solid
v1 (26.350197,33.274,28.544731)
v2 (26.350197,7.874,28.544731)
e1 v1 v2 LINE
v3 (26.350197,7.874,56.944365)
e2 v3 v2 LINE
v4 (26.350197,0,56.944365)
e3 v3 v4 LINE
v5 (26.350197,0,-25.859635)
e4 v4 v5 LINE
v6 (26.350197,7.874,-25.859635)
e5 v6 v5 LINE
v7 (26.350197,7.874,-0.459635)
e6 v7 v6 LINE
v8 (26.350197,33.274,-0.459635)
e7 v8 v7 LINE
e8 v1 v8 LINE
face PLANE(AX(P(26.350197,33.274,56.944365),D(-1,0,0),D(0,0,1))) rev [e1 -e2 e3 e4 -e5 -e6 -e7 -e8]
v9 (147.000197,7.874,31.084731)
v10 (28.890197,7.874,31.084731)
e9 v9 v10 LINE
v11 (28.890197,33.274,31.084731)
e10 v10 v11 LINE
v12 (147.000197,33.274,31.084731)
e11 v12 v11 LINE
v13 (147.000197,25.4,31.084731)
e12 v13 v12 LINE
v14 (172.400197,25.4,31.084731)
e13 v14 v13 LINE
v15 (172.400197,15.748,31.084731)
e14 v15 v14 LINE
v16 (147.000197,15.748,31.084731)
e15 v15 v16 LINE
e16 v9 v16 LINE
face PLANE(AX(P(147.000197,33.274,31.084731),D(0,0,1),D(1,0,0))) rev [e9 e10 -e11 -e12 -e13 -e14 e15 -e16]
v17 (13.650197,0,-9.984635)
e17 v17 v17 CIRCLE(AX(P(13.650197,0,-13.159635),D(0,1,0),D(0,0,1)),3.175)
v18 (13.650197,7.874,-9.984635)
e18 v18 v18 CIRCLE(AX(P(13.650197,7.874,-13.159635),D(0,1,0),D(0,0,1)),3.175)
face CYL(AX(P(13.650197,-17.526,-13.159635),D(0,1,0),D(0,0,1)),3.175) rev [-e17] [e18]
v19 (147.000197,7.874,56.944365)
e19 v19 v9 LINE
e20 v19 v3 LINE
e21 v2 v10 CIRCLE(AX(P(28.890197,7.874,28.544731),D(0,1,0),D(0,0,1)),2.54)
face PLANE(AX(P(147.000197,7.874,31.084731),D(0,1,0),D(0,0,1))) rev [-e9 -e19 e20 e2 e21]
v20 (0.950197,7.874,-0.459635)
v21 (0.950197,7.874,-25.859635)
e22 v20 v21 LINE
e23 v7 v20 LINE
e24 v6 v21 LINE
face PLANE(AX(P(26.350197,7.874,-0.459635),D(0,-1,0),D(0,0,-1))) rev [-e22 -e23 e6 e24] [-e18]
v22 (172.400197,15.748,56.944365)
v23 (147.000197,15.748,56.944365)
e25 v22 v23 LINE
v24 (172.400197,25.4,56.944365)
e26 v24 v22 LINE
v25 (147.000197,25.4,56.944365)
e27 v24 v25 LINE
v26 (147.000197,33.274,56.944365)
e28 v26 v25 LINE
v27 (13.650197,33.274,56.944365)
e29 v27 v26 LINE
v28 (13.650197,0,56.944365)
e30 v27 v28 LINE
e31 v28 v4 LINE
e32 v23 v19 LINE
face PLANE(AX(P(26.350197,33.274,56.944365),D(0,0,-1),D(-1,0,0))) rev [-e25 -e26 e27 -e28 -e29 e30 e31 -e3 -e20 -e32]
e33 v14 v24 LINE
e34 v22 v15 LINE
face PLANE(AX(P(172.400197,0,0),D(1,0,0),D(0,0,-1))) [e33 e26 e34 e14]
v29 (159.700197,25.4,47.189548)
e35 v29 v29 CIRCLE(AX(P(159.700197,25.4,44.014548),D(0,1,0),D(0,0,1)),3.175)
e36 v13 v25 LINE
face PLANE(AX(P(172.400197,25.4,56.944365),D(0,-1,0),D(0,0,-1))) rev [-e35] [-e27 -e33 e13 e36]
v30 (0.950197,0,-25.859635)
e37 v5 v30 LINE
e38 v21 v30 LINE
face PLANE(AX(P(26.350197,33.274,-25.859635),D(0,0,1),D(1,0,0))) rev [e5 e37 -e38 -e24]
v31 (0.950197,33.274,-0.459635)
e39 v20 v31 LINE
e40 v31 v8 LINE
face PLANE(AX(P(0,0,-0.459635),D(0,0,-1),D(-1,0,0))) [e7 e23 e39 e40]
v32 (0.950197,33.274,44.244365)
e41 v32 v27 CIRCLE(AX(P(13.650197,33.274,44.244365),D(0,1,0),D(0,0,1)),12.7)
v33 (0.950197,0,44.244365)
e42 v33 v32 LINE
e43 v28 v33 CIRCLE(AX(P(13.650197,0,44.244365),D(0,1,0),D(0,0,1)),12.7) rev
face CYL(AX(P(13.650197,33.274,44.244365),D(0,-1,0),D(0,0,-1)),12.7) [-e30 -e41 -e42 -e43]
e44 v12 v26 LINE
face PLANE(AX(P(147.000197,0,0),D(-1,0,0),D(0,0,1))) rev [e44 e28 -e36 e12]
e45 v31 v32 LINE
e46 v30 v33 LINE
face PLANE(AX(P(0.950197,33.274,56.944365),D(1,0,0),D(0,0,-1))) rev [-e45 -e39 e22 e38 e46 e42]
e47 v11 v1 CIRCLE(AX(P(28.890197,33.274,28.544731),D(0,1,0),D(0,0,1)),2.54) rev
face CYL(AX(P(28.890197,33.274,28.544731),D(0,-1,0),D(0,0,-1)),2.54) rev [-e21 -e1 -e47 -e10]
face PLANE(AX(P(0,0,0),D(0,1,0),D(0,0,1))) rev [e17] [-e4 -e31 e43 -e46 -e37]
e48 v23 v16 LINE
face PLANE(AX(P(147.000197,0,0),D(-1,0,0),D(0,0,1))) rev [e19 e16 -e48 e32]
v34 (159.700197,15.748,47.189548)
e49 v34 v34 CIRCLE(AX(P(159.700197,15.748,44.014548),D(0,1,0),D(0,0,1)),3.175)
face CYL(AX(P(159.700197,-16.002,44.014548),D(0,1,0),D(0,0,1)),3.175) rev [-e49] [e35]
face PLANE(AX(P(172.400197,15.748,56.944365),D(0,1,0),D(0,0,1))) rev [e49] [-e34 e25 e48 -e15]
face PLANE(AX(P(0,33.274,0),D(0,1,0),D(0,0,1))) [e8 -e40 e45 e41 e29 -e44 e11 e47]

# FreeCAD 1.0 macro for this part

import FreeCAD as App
import Part
import Sketcher
from FreeCAD import Vector
Q = App.Units.Quantity


def edges_at(feature, points):
    """Names of the edges that pass closest to the given points."""
    edges = feature.Shape.Edges
    near = lambda p: min(range(len(edges)), key=lambda i: edges[i].distToShape(Part.Vertex(*p))[0])
    return sorted({f"Edge{near(p) + 1}" for p in points})

doc = App.newDocument("Part")
body = doc.addObject("PartDesign::Body", "Body")

sketch1 = doc.addObject("Sketcher::SketchObject", "Sketch")
body.addObject(sketch1)
sketch1.AttachmentSupport = (doc.XZ_Plane, [""])
sketch1.MapMode = "FlatFace"
sketch1.addGeometry([
    Part.LineSegment(Vector(0.950197, -25.859635, 0), Vector(0.950197, 56.944365, 0)),
    Part.LineSegment(Vector(0.950197, 56.944365, 0), Vector(26.350197, 56.944365, 0)),
    Part.LineSegment(Vector(26.350197, 56.944365, 0), Vector(26.350197, -25.859635, 0)),
    Part.LineSegment(Vector(26.350197, -25.859635, 0), Vector(0.950197, -25.859635, 0)),
], False)
sketch1.addConstraint([
    Sketcher.Constraint("Coincident", 0, 2, 1, 1),
    Sketcher.Constraint("Coincident", 1, 2, 2, 1),
    Sketcher.Constraint("Coincident", 2, 2, 3, 1),
    Sketcher.Constraint("Coincident", 3, 2, 0, 1),
    Sketcher.Constraint("Vertical", 0),
    Sketcher.Constraint("Horizontal", 1),
    Sketcher.Constraint("Vertical", 2),
    Sketcher.Constraint("Horizontal", 3),
    Sketcher.Constraint("DistanceX", 1, 1, 1, 2, Q("1 in")),
    Sketcher.Constraint("DistanceY", 0, 1, 0, 2, Q("3.26 in")),
    Sketcher.Constraint("DistanceX", -1, 1, 0, 2, Q("0.950197 mm")),
    Sketcher.Constraint("DistanceY", -1, 1, 0, 2, Q("56.944365 mm")),
])
pad1 = doc.addObject("PartDesign::Pad", "Pad")
body.addObject(pad1)
pad1.Profile = sketch1
pad1.Length = Q("1.31 in")
pad1.Reversed = True

sketch2 = doc.addObject("Sketcher::SketchObject", "Sketch001")
body.addObject(sketch2)
sketch2.AttachmentSupport = (doc.YZ_Plane, [""])
sketch2.MapMode = "FlatFace"
sketch2.AttachmentOffset = App.Placement(Vector(0, 0, 26.350197), App.Rotation())
sketch2.addGeometry([
    Part.LineSegment(Vector(33.274, 56.944365, 0), Vector(7.874, 56.944365, 0)),
    Part.LineSegment(Vector(7.874, 56.944365, 0), Vector(7.874, 31.084731, 0)),
    Part.LineSegment(Vector(7.874, 31.084731, 0), Vector(33.274, 31.084731, 0)),
    Part.LineSegment(Vector(33.274, 31.084731, 0), Vector(33.274, 56.944365, 0)),
], False)
sketch2.addConstraint([
    Sketcher.Constraint("Coincident", 0, 2, 1, 1),
    Sketcher.Constraint("Coincident", 1, 2, 2, 1),
    Sketcher.Constraint("Coincident", 2, 2, 3, 1),
    Sketcher.Constraint("Coincident", 3, 2, 0, 1),
    Sketcher.Constraint("Horizontal", 0),
    Sketcher.Constraint("Vertical", 1),
    Sketcher.Constraint("Horizontal", 2),
    Sketcher.Constraint("Vertical", 3),
    Sketcher.Constraint("DistanceX", 0, 2, 0, 1, Q("1 in")),
    Sketcher.Constraint("DistanceX", -1, 1, 0, 2, Q("0.31 in")),
    Sketcher.Constraint("DistanceY", 1, 2, 1, 1, Q("25.859635 mm")),
    Sketcher.Constraint("DistanceY", -1, 1, 1, 2, Q("31.084731 mm")),
])
pad2 = doc.addObject("PartDesign::Pad", "Pad001")
body.addObject(pad2)
pad2.Profile = sketch2
pad2.Length = Q("4.75 in")

sketch3 = doc.addObject("Sketcher::SketchObject", "Sketch002")
body.addObject(sketch3)
sketch3.AttachmentSupport = (doc.XY_Plane, [""])
sketch3.MapMode = "FlatFace"
sketch3.AttachmentOffset = App.Placement(Vector(0, 0, -25.859635), App.Rotation())
sketch3.addGeometry([
    Part.LineSegment(Vector(26.350197, 33.274, 0), Vector(26.350197, 7.874, 0)),
    Part.LineSegment(Vector(26.350197, 7.874, 0), Vector(0.950197, 7.874, 0)),
    Part.LineSegment(Vector(0.950197, 7.874, 0), Vector(0.950197, 33.274, 0)),
    Part.LineSegment(Vector(0.950197, 33.274, 0), Vector(26.350197, 33.274, 0)),
], False)
sketch3.addConstraint([
    Sketcher.Constraint("Coincident", 0, 2, 1, 1),
    Sketcher.Constraint("Coincident", 1, 2, 2, 1),
    Sketcher.Constraint("Coincident", 2, 2, 3, 1),
    Sketcher.Constraint("Coincident", 3, 2, 0, 1),
    Sketcher.Constraint("Vertical", 0),
    Sketcher.Constraint("Horizontal", 1),
    Sketcher.Constraint("Vertical", 2),
    Sketcher.Constraint("Horizontal", 3),
    Sketcher.Constraint("Equal", 3, 0),
    Sketcher.Constraint("DistanceX", 1, 2, 1, 1, Q("1 in")),
    Sketcher.Constraint("DistanceY", -1, 1, 0, 2, Q("0.31 in")),
    Sketcher.Constraint("DistanceX", -1, 1, 0, 2, Q("26.350197 mm")),
])
pocket1 = doc.addObject("PartDesign::Pocket", "Pocket")
body.addObject(pocket1)
pocket1.Profile = sketch3
pocket1.Length = Q("1 in")
pocket1.Reversed = True

sketch4 = doc.addObject("Sketcher::SketchObject", "Sketch003")
body.addObject(sketch4)
sketch4.AttachmentSupport = (doc.YZ_Plane, [""])
sketch4.MapMode = "FlatFace"
sketch4.AttachmentOffset = App.Placement(Vector(0, 0, 147.000197), App.Rotation())
sketch4.addGeometry([
    Part.LineSegment(Vector(25.4, 56.944365, 0), Vector(15.748, 56.944365, 0)),
    Part.LineSegment(Vector(15.748, 56.944365, 0), Vector(15.748, 31.084731, 0)),
    Part.LineSegment(Vector(15.748, 31.084731, 0), Vector(25.4, 31.084731, 0)),
    Part.LineSegment(Vector(25.4, 31.084731, 0), Vector(25.4, 56.944365, 0)),
], False)
sketch4.addConstraint([
    Sketcher.Constraint("Coincident", 0, 2, 1, 1),
    Sketcher.Constraint("Coincident", 1, 2, 2, 1),
    Sketcher.Constraint("Coincident", 2, 2, 3, 1),
    Sketcher.Constraint("Coincident", 3, 2, 0, 1),
    Sketcher.Constraint("Horizontal", 0),
    Sketcher.Constraint("Vertical", 1),
    Sketcher.Constraint("Horizontal", 2),
    Sketcher.Constraint("Vertical", 3),
    Sketcher.Constraint("DistanceX", -1, 1, 2, 2, Q("1 in")),
    Sketcher.Constraint("DistanceX", 0, 2, 0, 1, Q("0.38 in")),
    Sketcher.Constraint("DistanceY", 1, 2, 1, 1, Q("25.859635 mm")),
    Sketcher.Constraint("DistanceY", -1, 1, 1, 2, Q("31.084731 mm")),
])
pad3 = doc.addObject("PartDesign::Pad", "Pad002")
body.addObject(pad3)
pad3.Profile = sketch4
pad3.Length = Q("1 in")

sketch5 = doc.addObject("Sketcher::SketchObject", "Sketch004")
body.addObject(sketch5)
sketch5.AttachmentSupport = (doc.XZ_Plane, [""])
sketch5.MapMode = "FlatFace"
sketch5.AttachmentOffset = App.Placement(Vector(0, 0, -1 * 25.4), App.Rotation())
sketch5.addGeometry(Part.Circle(Vector(159.700197, 44.014548, 0), Vector(0, 0, 1), 3.175), False)
sketch5.addConstraint([
    Sketcher.Constraint("Diameter", 0, Q("0.25 in")),
    Sketcher.Constraint("DistanceX", -1, 1, 0, 3, Q("159.700197 mm")),
    Sketcher.Constraint("DistanceY", -1, 1, 0, 3, Q("44.014548 mm")),
])
pocket2 = doc.addObject("PartDesign::Pocket", "Pocket001")
body.addObject(pocket2)
pocket2.Profile = sketch5
pocket2.Length = Q("1.63 in")
pocket2.Reversed = True
doc.recompute()

fillet = doc.addObject("PartDesign::Fillet", "Fillet")
body.addObject(fillet)
fillet.Base = (pocket2, edges_at(pocket2, [(0.95, 16.637, 56.944)]))
fillet.Radius = Q("0.5 in")
doc.recompute()

fillet2 = doc.addObject("PartDesign::Fillet", "Fillet001")
body.addObject(fillet2)
fillet2.Base = (fillet, edges_at(fillet, [(26.35, 20.574, 31.085)]))
fillet2.Radius = Q("0.1 in")

sketch6 = doc.addObject("Sketcher::SketchObject", "Sketch005")
body.addObject(sketch6)
sketch6.AttachmentSupport = (doc.XZ_Plane, [""])
sketch6.MapMode = "FlatFace"
sketch6.AttachmentOffset = App.Placement(Vector(0, 0, -0.31 * 25.4), App.Rotation())
sketch6.addGeometry(Part.Circle(Vector(13.650197, -13.159635, 0), Vector(0, 0, 1), 3.175), False)
sketch6.addConstraint([
    Sketcher.Constraint("Diameter", 0, Q("0.25 in")),
    Sketcher.Constraint("DistanceX", -1, 1, 0, 3, Q("13.650197 mm")),
    Sketcher.Constraint("DistanceY", 0, 3, -1, 1, Q("13.159635 mm")),
])
pocket3 = doc.addObject("PartDesign::Pocket", "Pocket002")
body.addObject(pocket3)
pocket3.Profile = sketch6
pocket3.Length = Q("1 in")
pocket3.Reversed = True

doc.recompute()
